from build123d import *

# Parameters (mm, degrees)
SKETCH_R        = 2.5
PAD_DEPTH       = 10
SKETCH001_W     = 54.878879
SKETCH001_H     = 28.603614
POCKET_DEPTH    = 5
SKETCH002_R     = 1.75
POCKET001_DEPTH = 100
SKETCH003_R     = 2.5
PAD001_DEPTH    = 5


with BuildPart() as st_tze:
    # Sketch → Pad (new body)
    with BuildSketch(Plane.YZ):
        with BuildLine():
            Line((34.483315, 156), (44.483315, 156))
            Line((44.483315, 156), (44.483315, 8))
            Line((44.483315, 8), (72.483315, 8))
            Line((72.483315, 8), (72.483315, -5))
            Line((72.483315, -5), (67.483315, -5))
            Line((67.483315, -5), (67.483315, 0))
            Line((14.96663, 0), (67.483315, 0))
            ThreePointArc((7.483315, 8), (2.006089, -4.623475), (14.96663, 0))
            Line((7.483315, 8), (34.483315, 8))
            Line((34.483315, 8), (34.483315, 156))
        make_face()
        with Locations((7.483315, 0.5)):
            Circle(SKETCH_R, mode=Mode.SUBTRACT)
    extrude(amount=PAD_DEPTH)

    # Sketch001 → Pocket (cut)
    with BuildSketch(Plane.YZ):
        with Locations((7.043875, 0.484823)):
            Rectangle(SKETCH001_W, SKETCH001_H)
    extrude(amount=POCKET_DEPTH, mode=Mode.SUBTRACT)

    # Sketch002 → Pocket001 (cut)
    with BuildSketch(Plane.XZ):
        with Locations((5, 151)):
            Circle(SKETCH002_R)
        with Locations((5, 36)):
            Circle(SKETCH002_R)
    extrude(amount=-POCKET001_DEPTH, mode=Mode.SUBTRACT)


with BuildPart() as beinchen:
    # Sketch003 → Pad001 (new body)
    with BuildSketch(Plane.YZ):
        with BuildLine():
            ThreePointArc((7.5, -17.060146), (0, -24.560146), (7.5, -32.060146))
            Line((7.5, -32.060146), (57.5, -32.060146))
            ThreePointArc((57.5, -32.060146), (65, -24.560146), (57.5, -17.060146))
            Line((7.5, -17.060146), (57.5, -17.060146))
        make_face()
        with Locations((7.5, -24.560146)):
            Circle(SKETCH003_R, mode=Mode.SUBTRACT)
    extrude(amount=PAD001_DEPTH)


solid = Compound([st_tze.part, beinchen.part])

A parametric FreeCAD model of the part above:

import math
import FreeCAD as App
import Part
import Sketcher
Q = App.Units.Quantity

doc = App.newDocument("Part")
params = doc.addObject("Spreadsheet::Sheet", "Params")
for row, (alias, value) in enumerate([
    ("sketch1_diameter", "5 mm"),
    ("sketch1_radius", "7.5 mm"),
    ("sketch1_width", "10 mm"),
    ("sketch1_width2", "27 mm"),
    ("sketch1_width3", "5 mm"),
    ("pad1_length", "10 mm"),
    ("pocket1_length", "5 mm"),
    ("sketch3_diameter", "3.5 mm"),
    ("pocket2_length", "100 mm"),
    ("sketch4_diameter", "5 mm"),
    ("sketch4_radius", "7.5 mm"),
    ("sketch4_width", "50 mm"),
    ("pad2_length", "5 mm"),
], start=1):
    params.set(f"A{row}", alias)
    params.set(f"B{row}", "=" + value)
    params.setAlias(f"B{row}", alias)

body = doc.addObject("PartDesign::Body", "Body")

# Sketch on YZ plane
sketch1 = body.newObject("Sketcher::SketchObject", "Sketch")
sketch1.AttachmentSupport = (doc.getObject("YZ_Plane"), [""])
sketch1.MapMode = "FlatFace"
sketch1.addGeometry([
    Part.LineSegment(App.Vector(44.5, 156, 0), App.Vector(34.5, 156, 0)),  # 0
    Part.LineSegment(App.Vector(34.5, 156, 0), App.Vector(34.5, 8, 0)),  # 1
    Part.LineSegment(App.Vector(34.5, 8, 0), App.Vector(7.5, 8, 0)),  # 2
    Part.ArcOfCircle(Part.Circle(App.Vector(7.5, 0.5, 0), App.Vector(0, 0, 1), 7.5), math.radians(90), math.radians(356)),  # 3
    Part.LineSegment(App.Vector(15, 0, 0), App.Vector(67.5, 0, 0)),  # 4
    Part.LineSegment(App.Vector(67.5, 0, 0), App.Vector(67.5, -5, 0)),  # 5
    Part.LineSegment(App.Vector(67.5, -5, 0), App.Vector(72.5, -5, 0)),  # 6
    Part.LineSegment(App.Vector(72.5, -5, 0), App.Vector(72.5, 8, 0)),  # 7
    Part.LineSegment(App.Vector(72.5, 8, 0), App.Vector(44.5, 8, 0)),  # 8
    Part.LineSegment(App.Vector(44.5, 8, 0), App.Vector(44.5, 156, 0)),  # 9
    Part.Circle(App.Vector(7.5, 0.5, 0), App.Vector(0, 0, 1), 2.5),  # 10
], False)
sketch1.addConstraint([
    Sketcher.Constraint("Coincident", 0, 2, 1, 1),
    Sketcher.Constraint("Coincident", 1, 2, 2, 1),
    Sketcher.Constraint("Tangent", 2, 2, 3, 1),
    Sketcher.Constraint("Coincident", 3, 2, 4, 1),
    Sketcher.Constraint("Coincident", 4, 2, 5, 1),
    Sketcher.Constraint("Coincident", 5, 2, 6, 1),
    Sketcher.Constraint("Coincident", 6, 2, 7, 1),
    Sketcher.Constraint("Coincident", 7, 2, 8, 1),
    Sketcher.Constraint("Coincident", 8, 2, 9, 1),
    Sketcher.Constraint("Coincident", 9, 2, 0, 1),
    Sketcher.Constraint("Horizontal", 0),
    Sketcher.Constraint("Vertical", 1),
    Sketcher.Constraint("Horizontal", 2),
    Sketcher.Constraint("Horizontal", 4),
    Sketcher.Constraint("Vertical", 5),
    Sketcher.Constraint("Horizontal", 6),
    Sketcher.Constraint("Vertical", 7),
    Sketcher.Constraint("Horizontal", 8),
    Sketcher.Constraint("Vertical", 9),
    Sketcher.Constraint("Coincident", 10, 3, 3, 3),
    Sketcher.Constraint("PointOnObject", 3, 2, -1),
    Sketcher.Constraint("Horizontal", 2, 2, 7, 2),
    Sketcher.Constraint("Equal", 6, 5),
    Sketcher.Constraint("Diameter", 10, Q("5 mm")),
    Sketcher.Constraint("Radius", 3, Q("7.5 mm")),
    Sketcher.Constraint("DistanceX", 0, 2, 0, 1, Q("10 mm")),
    Sketcher.Constraint("DistanceX", 2, 2, 2, 1, Q("27 mm")),
    Sketcher.Constraint("DistanceX", 6, 1, 6, 2, Q("5 mm")),
    Sketcher.Constraint("DistanceX", 8, 2, 8, 1, Q("28 mm")),
    Sketcher.Constraint("DistanceY", 1, 2, 1, 1, Q("148 mm")),
    Sketcher.Constraint("DistanceY", 7, 1, 7, 2, Q("13 mm")),
    Sketcher.Constraint("DistanceX", -1, 1, 3, 2, Q("14.96663 mm")),
])
sketch1.setExpression("Constraints[23]", "Params.sketch1_diameter")
sketch1.setExpression("Constraints[24]", "Params.sketch1_radius")
sketch1.setExpression("Constraints[25]", "Params.sketch1_width")
sketch1.setExpression("Constraints[26]", "Params.sketch1_width2")
sketch1.setExpression("Constraints[27]", "Params.sketch1_width3")
pad1 = body.newObject("PartDesign::Pad", "Pad")
pad1.Profile = sketch1
pad1.setExpression("Length", "Params.pad1_length")

# Sketch on YZ plane
sketch2 = body.newObject("Sketcher::SketchObject", "Sketch001")
sketch2.AttachmentSupport = (doc.getObject("YZ_Plane"), [""])
sketch2.MapMode = "FlatFace"
sketch2.addGeometry([
    Part.LineSegment(App.Vector(-20, 15, 0), App.Vector(-20, -14, 0)),
    Part.LineSegment(App.Vector(-20, -14, 0), App.Vector(34, -14, 0)),
    Part.LineSegment(App.Vector(34, -14, 0), App.Vector(34, 15, 0)),
    Part.LineSegment(App.Vector(34, 15, 0), App.Vector(-20, 15, 0)),
], False)
sketch2.addConstraint([
    Sketcher.Constraint("Coincident", 0, 2, 1, 1),
    Sketcher.Constraint("Coincident", 1, 2, 2, 1),
    Sketcher.Constraint("Coincident", 2, 2, 3, 1),
    Sketcher.Constraint("Coincident", 3, 2, 0, 1),
    Sketcher.Constraint("Vertical", 0),
    Sketcher.Constraint("Horizontal", 1),
    Sketcher.Constraint("Vertical", 2),
    Sketcher.Constraint("Horizontal", 3),
    Sketcher.Constraint("DistanceX", 1, 1, 1, 2, Q("54.878879 mm")),
    Sketcher.Constraint("DistanceY", 0, 2, 0, 1, Q("28.603614 mm")),
    Sketcher.Constraint("DistanceY", -1, 1, 2, 2, Q("14.78663 mm")),
    Sketcher.Constraint("DistanceX", 0, 2, -1, 1, Q("20.395564 mm")),
])
pocket1 = body.newObject("PartDesign::Pocket", "Pocket")
pocket1.Profile = sketch2
pocket1.setExpression("Length", "Params.pocket1_length")
pocket1.Reversed = True

# Sketch on XZ plane
sketch3 = body.newObject("Sketcher::SketchObject", "Sketch002")
sketch3.AttachmentSupport = (doc.getObject("XZ_Plane"), [""])
sketch3.MapMode = "FlatFace"
sketch3.addGeometry([
    Part.Circle(App.Vector(5, 151, 0), App.Vector(0, 0, 1), 1.8),
    Part.Circle(App.Vector(5, 36, 0), App.Vector(0, 0, 1), 1.8),
], False)
sketch3.addConstraint([
    Sketcher.Constraint("Equal", 0, 1),
    Sketcher.Constraint("Vertical", 0, 3, 1, 3),
    Sketcher.Constraint("Diameter", 0, Q("3.5 mm")),
    Sketcher.Constraint("DistanceX", -1, 1, 0, 3, Q("5 mm")),
    Sketcher.Constraint("DistanceY", -1, 1, 0, 3, Q("151 mm")),
    Sketcher.Constraint("DistanceY", -1, 1, 1, 3, Q("36 mm")),
])
sketch3.setExpression("Constraints[2]", "Params.sketch3_diameter")
pocket2 = body.newObject("PartDesign::Pocket", "Pocket001")
pocket2.Profile = sketch3
pocket2.setExpression("Length", "Params.pocket2_length")
body2 = doc.addObject("PartDesign::Body", "Body001")

# Sketch on YZ plane
sketch4 = body2.newObject("Sketcher::SketchObject", "Sketch003")
sketch4.AttachmentSupport = (doc.getObject("YZ_Plane001"), [""])
sketch4.MapMode = "FlatFace"
sketch4.addGeometry([
    Part.ArcOfCircle(Part.Circle(App.Vector(7.5, -24.6, 0), App.Vector(0, 0, 1), 7.5), math.radians(90), math.radians(270)),  # 0
    Part.LineSegment(App.Vector(7.5, -32.1, 0), App.Vector(57.5, -32.1, 0)),  # 1
    Part.ArcOfCircle(Part.Circle(App.Vector(57.5, -24.6, 0), App.Vector(0, 0, 1), 7.5), math.radians(-90), math.radians(90)),  # 2
    Part.LineSegment(App.Vector(57.5, -17.1, 0), App.Vector(7.5, -17.1, 0)),  # 3
    Part.Circle(App.Vector(7.5, -24.6, 0), App.Vector(0, 0, 1), 2.5),  # 4
], False)
sketch4.addConstraint([
    Sketcher.Constraint("Tangent", 0, 2, 1, 1),
    Sketcher.Constraint("Tangent", 1, 2, 2, 1),
    Sketcher.Constraint("Tangent", 2, 2, 3, 1),
    Sketcher.Constraint("Tangent", 3, 2, 0, 1),
    Sketcher.Constraint("Horizontal", 1),
    Sketcher.Constraint("Horizontal", 3),
    Sketcher.Constraint("Coincident", 4, 3, 0, 3),
    Sketcher.Constraint("Diameter", 4, Q("5 mm")),
    Sketcher.Constraint("Radius", 0, Q("7.5 mm")),
    Sketcher.Constraint("DistanceX", 1, 1, 1, 2, Q("50 mm")),
    Sketcher.Constraint("DistanceX", -1, 1, 0, 3, Q("7.5 mm")),
    Sketcher.Constraint("DistanceY", 0, 3, -1, 1, Q("24.560146 mm")),
])
sketch4.setExpression("Constraints[7]", "Params.sketch4_diameter")
sketch4.setExpression("Constraints[8]", "Params.sketch4_radius")
sketch4.setExpression("Constraints[9]", "Params.sketch4_width")
pad2 = body2.newObject("PartDesign::Pad", "Pad001")
pad2.Profile = sketch4
pad2.setExpression("Length", "Params.pad2_length")

doc.recompute()
